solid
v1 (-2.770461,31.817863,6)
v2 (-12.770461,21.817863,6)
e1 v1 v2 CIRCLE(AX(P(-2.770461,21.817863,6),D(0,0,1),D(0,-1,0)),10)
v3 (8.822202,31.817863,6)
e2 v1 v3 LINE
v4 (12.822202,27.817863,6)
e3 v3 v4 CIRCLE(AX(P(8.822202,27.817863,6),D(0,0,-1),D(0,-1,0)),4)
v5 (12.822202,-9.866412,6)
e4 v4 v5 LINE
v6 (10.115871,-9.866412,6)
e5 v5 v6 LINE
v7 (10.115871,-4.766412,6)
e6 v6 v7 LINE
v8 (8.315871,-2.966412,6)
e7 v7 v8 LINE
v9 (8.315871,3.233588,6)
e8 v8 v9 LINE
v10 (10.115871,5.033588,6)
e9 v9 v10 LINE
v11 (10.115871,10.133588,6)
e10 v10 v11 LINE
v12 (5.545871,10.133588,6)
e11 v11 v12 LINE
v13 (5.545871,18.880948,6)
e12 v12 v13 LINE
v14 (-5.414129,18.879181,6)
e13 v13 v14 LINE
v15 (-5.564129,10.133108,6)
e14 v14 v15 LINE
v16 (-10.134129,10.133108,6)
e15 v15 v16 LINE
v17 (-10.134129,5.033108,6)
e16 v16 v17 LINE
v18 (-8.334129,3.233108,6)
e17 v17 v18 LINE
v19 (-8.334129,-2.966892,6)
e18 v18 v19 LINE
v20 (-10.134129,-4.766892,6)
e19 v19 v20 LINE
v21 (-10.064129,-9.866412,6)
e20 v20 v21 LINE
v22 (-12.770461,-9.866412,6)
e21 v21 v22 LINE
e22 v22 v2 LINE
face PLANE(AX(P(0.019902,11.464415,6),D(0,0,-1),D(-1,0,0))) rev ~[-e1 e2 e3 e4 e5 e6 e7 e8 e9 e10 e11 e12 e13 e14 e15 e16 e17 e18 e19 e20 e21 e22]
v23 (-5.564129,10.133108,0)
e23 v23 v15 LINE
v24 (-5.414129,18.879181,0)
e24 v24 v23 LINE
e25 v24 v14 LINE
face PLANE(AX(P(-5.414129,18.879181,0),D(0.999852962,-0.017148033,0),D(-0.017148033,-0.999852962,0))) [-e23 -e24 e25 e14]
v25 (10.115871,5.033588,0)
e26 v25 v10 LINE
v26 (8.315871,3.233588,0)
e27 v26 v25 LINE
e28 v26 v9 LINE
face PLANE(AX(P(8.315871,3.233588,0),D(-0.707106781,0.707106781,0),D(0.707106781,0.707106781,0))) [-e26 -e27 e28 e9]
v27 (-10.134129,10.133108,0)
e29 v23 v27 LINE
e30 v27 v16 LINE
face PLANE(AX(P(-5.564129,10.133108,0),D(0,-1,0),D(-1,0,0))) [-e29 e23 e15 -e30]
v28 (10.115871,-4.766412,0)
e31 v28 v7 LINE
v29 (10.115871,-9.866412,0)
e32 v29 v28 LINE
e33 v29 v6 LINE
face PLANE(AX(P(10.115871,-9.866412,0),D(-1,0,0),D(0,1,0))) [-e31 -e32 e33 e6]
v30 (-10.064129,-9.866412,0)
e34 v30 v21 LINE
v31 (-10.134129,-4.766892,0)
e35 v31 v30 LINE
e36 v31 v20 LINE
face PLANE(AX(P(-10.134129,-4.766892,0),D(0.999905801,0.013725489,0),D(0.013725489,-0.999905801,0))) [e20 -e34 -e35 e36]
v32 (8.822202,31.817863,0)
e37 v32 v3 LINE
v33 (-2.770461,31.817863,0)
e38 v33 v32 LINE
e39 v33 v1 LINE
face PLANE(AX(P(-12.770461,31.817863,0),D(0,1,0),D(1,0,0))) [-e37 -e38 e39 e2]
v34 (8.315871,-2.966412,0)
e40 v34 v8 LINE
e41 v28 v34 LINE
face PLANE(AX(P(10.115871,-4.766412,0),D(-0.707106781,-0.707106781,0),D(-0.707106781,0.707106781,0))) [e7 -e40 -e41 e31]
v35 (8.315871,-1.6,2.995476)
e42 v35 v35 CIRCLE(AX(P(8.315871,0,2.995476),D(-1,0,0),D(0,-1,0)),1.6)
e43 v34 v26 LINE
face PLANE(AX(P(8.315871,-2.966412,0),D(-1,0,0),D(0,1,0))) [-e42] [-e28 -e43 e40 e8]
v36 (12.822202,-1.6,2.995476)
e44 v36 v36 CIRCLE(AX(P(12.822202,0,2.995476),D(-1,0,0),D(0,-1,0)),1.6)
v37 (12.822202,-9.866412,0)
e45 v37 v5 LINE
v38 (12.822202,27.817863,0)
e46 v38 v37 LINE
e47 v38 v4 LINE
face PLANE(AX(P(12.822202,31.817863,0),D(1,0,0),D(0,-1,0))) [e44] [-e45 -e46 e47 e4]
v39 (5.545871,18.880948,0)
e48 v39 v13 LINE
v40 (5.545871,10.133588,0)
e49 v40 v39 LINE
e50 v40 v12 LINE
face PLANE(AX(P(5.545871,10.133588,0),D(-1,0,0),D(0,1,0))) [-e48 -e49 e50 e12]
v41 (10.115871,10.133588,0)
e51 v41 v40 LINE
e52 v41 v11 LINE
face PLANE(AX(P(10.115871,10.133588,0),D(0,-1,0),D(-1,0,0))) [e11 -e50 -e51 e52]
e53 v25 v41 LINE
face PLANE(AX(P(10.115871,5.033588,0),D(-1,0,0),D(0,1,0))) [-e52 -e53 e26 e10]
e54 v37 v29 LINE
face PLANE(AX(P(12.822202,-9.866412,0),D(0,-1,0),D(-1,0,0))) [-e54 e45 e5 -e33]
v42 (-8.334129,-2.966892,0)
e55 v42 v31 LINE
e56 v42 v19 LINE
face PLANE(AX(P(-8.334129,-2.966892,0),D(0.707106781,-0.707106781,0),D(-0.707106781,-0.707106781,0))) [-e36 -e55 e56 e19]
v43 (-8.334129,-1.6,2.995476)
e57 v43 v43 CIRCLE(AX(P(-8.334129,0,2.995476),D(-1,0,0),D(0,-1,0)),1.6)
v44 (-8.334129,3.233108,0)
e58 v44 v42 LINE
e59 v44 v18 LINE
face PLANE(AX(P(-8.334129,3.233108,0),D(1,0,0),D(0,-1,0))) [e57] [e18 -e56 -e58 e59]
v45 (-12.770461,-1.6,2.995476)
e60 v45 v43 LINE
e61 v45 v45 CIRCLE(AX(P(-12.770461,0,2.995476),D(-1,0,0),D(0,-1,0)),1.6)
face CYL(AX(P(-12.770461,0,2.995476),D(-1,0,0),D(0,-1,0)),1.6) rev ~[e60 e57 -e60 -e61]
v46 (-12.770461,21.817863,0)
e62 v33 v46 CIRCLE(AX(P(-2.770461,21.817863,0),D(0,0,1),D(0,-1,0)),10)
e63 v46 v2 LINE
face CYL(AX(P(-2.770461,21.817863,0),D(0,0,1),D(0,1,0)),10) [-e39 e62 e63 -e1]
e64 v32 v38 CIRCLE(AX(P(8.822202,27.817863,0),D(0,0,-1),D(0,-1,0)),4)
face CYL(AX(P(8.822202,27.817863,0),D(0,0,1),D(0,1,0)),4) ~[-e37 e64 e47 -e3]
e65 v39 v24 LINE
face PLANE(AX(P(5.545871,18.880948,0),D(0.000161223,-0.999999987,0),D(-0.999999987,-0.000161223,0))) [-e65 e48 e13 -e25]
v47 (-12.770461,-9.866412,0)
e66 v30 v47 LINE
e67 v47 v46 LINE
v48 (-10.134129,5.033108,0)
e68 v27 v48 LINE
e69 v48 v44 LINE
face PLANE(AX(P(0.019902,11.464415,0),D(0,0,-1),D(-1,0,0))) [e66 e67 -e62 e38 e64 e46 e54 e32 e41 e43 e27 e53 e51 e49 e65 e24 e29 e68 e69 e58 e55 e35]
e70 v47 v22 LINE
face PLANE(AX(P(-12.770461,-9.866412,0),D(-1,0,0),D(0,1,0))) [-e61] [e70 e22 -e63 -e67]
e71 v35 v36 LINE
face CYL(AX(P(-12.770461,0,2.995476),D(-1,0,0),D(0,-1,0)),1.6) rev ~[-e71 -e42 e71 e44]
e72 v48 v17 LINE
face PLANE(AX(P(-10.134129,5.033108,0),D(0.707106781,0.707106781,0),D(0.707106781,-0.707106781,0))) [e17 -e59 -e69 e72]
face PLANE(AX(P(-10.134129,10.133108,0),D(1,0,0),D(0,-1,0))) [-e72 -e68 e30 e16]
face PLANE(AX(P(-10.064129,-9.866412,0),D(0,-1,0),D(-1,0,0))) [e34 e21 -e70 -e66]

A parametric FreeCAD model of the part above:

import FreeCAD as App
import Part
import Sketcher

V = App.Vector
Q = App.Units.Quantity


def edges_at(feature, points):
    """Names of the edges that pass closest to the given points."""
    edges = feature.Shape.Edges
    near = lambda p: min(range(len(edges)), key=lambda i: edges[i].distToShape(Part.Vertex(*p))[0])
    return sorted({f"Edge{near(p) + 1}" for p in points})

doc = App.newDocument("Part")
body = doc.addObject("PartDesign::Body", "Body")

# Sketch on XY plane
sketch1 = doc.addObject("Sketcher::SketchObject", "Sketch")
body.addObject(sketch1)
sketch1.AttachmentSupport = (doc.XY_Plane, [""])
sketch1.MapMode = "FlatFace"
sketch1.addGeometry([
    Part.LineSegment(V(10.115871, -4.766412, 0), V(10.115871, -9.866412, 0)),  # 0
    Part.LineSegment(V(10.115871, -9.866412, 0), V(12.822202, -9.866412, 0)),  # 1
    Part.LineSegment(V(12.822202, -9.866412, 0), V(12.822202, 31.817863, 0)),  # 2
    Part.LineSegment(V(12.822202, 31.817863, 0), V(-12.770461, 31.817863, 0)),  # 3
    Part.LineSegment(V(-12.770461, 31.817863, 0), V(-12.770461, -9.866412, 0)),  # 4
    Part.LineSegment(V(-12.770461, -9.866412, 0), V(-10.064129, -9.866412, 0)),  # 5
    Part.LineSegment(V(-10.064129, -9.866412, 0), V(-10.134129, -4.766892, 0)),  # 6
    Part.LineSegment(V(-10.134129, -4.766892, 0), V(-8.334129, -2.966892, 0)),  # 7
    Part.LineSegment(V(-8.334129, -2.966892, 0), V(-8.334129, 3.233108, 0)),  # 8
    Part.LineSegment(V(-8.334129, 3.233108, 0), V(-10.134129, 5.033108, 0)),  # 9
    Part.LineSegment(V(-10.134129, 5.033108, 0), V(-10.134129, 10.133108, 0)),  # 10
    Part.LineSegment(V(-10.134129, 10.133108, 0), V(-5.564129, 10.133108, 0)),  # 11
    Part.LineSegment(V(-5.564129, 10.133108, 0), V(-5.414129, 18.879181, 0)),  # 12
    Part.LineSegment(V(-5.414129, 18.879181, 0), V(5.545871, 18.880948, 0)),  # 13
    Part.LineSegment(V(5.545871, 18.880948, 0), V(5.545871, 10.133588, 0)),  # 14
    Part.LineSegment(V(5.545871, 10.133588, 0), V(10.115871, 10.133588, 0)),  # 15
    Part.LineSegment(V(10.115871, 10.133588, 0), V(10.115871, 5.033588, 0)),  # 16
    Part.LineSegment(V(10.115871, 5.033588, 0), V(8.315871, 3.233588, 0)),  # 17
    Part.LineSegment(V(8.315871, 3.233588, 0), V(8.315871, -2.966412, 0)),  # 18
    Part.LineSegment(V(8.315871, -2.966412, 0), V(10.115871, -4.766412, 0)),  # 19
], False)
sketch1.addConstraint([
    Sketcher.Constraint("Coincident", 0, 2, 1, 1),
    Sketcher.Constraint("Coincident", 1, 2, 2, 1),
    Sketcher.Constraint("Coincident", 2, 2, 3, 1),
    Sketcher.Constraint("Coincident", 3, 2, 4, 1),
    Sketcher.Constraint("Coincident", 4, 2, 5, 1),
    Sketcher.Constraint("Coincident", 5, 2, 6, 1),
    Sketcher.Constraint("Coincident", 6, 2, 7, 1),
    Sketcher.Constraint("Coincident", 7, 2, 8, 1),
    Sketcher.Constraint("Coincident", 8, 2, 9, 1),
    Sketcher.Constraint("Coincident", 9, 2, 10, 1),
    Sketcher.Constraint("Coincident", 10, 2, 11, 1),
    Sketcher.Constraint("Coincident", 11, 2, 12, 1),
    Sketcher.Constraint("Coincident", 12, 2, 13, 1),
    Sketcher.Constraint("Coincident", 13, 2, 14, 1),
    Sketcher.Constraint("Coincident", 14, 2, 15, 1),
    Sketcher.Constraint("Coincident", 15, 2, 16, 1),
    Sketcher.Constraint("Coincident", 16, 2, 17, 1),
    Sketcher.Constraint("Coincident", 17, 2, 18, 1),
    Sketcher.Constraint("Coincident", 18, 2, 19, 1),
    Sketcher.Constraint("Coincident", 19, 2, 0, 1),
    Sketcher.Constraint("Vertical", 0),
    Sketcher.Constraint("Horizontal", 1),
    Sketcher.Constraint("Vertical", 2),
    Sketcher.Constraint("Horizontal", 3),
    Sketcher.Constraint("Vertical", 4),
    Sketcher.Constraint("Horizontal", 5),
    Sketcher.Constraint("Vertical", 8),
    Sketcher.Constraint("Vertical", 10),
    Sketcher.Constraint("Horizontal", 11),
    Sketcher.Constraint("Vertical", 14),
    Sketcher.Constraint("Horizontal", 15),
    Sketcher.Constraint("Vertical", 16),
    Sketcher.Constraint("Vertical", 18),
    Sketcher.Constraint("Perpendicular", 7, 9),
    Sketcher.Constraint("Perpendicular", 9, 17),
    Sketcher.Constraint("Perpendicular", 17, 19),
    Sketcher.Constraint("Horizontal", 1, 2, 4, 2),
    Sketcher.Constraint("Vertical", 6, 2, 9, 2),
    Sketcher.Constraint("Vertical", 0, 2, 15, 2),
    Sketcher.Constraint("Equal", 1, 5),
    Sketcher.Constraint("Equal", 11, 15),
    Sketcher.Constraint("Equal", 0, 10),
    Sketcher.Constraint("Equal", 10, 16),
    Sketcher.Constraint("Equal", 8, 18),
    Sketcher.Constraint("Equal", 7, 9),
    Sketcher.Constraint("Equal", 9, 17),
    Sketcher.Constraint("DistanceY", 0, 2, 0, 1, Q("5.1 mm")),
    Sketcher.Constraint("DistanceY", 8, 1, 8, 2, Q("6.2 mm")),
    Sketcher.Constraint("DistanceY", 6, 2, 8, 2, Q("8 mm")),
    Sketcher.Constraint("Distance", 6, Q("5.1 mm")),
    Sketcher.Constraint("DistanceX", 11, 1, 11, 2, Q("4.57 mm")),
    Sketcher.Constraint("Distance", 13, Q("10.96 mm")),
    Sketcher.Constraint("DistanceX", 5, 2, 0, 2, Q("20.18 mm")),
    Sketcher.Constraint("DistanceX", 6, 2, 5, 2, Q("0.07 mm")),
    Sketcher.Constraint("DistanceX", 1, 1, 1, 2, Q("2.706331 mm")),
    Sketcher.Constraint("DistanceY", 14, 2, 14, 1, Q("8.74736 mm")),
    Sketcher.Constraint("Distance", 12, Q("8.747359 mm")),
    Sketcher.Constraint("DistanceY", 2, 1, 2, 2, Q("41.684275 mm")),
    Sketcher.Constraint("DistanceX", -1, 1, 0, 2, Q("10.115871 mm")),
    Sketcher.Constraint("DistanceY", -1, 1, 8, 2, Q("3.233108 mm")),
])
pad1 = doc.addObject("PartDesign::Pad", "Pad")
body.addObject(pad1)
pad1.Profile = sketch1
pad1.Length = 6
doc.recompute()

fillet = doc.addObject("PartDesign::Fillet", "Fillet")
body.addObject(fillet)
fillet.Base = (pad1, edges_at(pad1, [(12.822, 31.818, 3)]))
fillet.Radius = 4
doc.recompute()

fillet2 = doc.addObject("PartDesign::Fillet", "Fillet001")
body.addObject(fillet2)
fillet2.Base = (fillet, edges_at(fillet, [(-12.77, 31.818, 3)]))
fillet2.Radius = 10

# Sketch on YZ plane
sketch2 = doc.addObject("Sketcher::SketchObject", "Sketch001")
body.addObject(sketch2)
sketch2.AttachmentSupport = (doc.YZ_Plane, [""])
sketch2.MapMode = "FlatFace"
sketch2.AttachmentOffset = App.Placement(V(0, 0, -12.770461), App.Rotation())
sketch2.addGeometry(Part.Circle(V(0, 2.995476, 0), V(0, 0, 1), 1.6), False)
sketch2.addConstraint([
    Sketcher.Constraint("PointOnObject", 0, 3, -2),
    Sketcher.Constraint("Diameter", 0, Q("3.2 mm")),
    Sketcher.Constraint("DistanceY", -1, 1, 0, 3, Q("2.995476 mm")),
])
pocket1 = doc.addObject("PartDesign::Pocket", "Pocket")
body.addObject(pocket1)
pocket1.Profile = sketch2
pocket1.Length = 40
pocket1.Reversed = True

doc.recompute()
